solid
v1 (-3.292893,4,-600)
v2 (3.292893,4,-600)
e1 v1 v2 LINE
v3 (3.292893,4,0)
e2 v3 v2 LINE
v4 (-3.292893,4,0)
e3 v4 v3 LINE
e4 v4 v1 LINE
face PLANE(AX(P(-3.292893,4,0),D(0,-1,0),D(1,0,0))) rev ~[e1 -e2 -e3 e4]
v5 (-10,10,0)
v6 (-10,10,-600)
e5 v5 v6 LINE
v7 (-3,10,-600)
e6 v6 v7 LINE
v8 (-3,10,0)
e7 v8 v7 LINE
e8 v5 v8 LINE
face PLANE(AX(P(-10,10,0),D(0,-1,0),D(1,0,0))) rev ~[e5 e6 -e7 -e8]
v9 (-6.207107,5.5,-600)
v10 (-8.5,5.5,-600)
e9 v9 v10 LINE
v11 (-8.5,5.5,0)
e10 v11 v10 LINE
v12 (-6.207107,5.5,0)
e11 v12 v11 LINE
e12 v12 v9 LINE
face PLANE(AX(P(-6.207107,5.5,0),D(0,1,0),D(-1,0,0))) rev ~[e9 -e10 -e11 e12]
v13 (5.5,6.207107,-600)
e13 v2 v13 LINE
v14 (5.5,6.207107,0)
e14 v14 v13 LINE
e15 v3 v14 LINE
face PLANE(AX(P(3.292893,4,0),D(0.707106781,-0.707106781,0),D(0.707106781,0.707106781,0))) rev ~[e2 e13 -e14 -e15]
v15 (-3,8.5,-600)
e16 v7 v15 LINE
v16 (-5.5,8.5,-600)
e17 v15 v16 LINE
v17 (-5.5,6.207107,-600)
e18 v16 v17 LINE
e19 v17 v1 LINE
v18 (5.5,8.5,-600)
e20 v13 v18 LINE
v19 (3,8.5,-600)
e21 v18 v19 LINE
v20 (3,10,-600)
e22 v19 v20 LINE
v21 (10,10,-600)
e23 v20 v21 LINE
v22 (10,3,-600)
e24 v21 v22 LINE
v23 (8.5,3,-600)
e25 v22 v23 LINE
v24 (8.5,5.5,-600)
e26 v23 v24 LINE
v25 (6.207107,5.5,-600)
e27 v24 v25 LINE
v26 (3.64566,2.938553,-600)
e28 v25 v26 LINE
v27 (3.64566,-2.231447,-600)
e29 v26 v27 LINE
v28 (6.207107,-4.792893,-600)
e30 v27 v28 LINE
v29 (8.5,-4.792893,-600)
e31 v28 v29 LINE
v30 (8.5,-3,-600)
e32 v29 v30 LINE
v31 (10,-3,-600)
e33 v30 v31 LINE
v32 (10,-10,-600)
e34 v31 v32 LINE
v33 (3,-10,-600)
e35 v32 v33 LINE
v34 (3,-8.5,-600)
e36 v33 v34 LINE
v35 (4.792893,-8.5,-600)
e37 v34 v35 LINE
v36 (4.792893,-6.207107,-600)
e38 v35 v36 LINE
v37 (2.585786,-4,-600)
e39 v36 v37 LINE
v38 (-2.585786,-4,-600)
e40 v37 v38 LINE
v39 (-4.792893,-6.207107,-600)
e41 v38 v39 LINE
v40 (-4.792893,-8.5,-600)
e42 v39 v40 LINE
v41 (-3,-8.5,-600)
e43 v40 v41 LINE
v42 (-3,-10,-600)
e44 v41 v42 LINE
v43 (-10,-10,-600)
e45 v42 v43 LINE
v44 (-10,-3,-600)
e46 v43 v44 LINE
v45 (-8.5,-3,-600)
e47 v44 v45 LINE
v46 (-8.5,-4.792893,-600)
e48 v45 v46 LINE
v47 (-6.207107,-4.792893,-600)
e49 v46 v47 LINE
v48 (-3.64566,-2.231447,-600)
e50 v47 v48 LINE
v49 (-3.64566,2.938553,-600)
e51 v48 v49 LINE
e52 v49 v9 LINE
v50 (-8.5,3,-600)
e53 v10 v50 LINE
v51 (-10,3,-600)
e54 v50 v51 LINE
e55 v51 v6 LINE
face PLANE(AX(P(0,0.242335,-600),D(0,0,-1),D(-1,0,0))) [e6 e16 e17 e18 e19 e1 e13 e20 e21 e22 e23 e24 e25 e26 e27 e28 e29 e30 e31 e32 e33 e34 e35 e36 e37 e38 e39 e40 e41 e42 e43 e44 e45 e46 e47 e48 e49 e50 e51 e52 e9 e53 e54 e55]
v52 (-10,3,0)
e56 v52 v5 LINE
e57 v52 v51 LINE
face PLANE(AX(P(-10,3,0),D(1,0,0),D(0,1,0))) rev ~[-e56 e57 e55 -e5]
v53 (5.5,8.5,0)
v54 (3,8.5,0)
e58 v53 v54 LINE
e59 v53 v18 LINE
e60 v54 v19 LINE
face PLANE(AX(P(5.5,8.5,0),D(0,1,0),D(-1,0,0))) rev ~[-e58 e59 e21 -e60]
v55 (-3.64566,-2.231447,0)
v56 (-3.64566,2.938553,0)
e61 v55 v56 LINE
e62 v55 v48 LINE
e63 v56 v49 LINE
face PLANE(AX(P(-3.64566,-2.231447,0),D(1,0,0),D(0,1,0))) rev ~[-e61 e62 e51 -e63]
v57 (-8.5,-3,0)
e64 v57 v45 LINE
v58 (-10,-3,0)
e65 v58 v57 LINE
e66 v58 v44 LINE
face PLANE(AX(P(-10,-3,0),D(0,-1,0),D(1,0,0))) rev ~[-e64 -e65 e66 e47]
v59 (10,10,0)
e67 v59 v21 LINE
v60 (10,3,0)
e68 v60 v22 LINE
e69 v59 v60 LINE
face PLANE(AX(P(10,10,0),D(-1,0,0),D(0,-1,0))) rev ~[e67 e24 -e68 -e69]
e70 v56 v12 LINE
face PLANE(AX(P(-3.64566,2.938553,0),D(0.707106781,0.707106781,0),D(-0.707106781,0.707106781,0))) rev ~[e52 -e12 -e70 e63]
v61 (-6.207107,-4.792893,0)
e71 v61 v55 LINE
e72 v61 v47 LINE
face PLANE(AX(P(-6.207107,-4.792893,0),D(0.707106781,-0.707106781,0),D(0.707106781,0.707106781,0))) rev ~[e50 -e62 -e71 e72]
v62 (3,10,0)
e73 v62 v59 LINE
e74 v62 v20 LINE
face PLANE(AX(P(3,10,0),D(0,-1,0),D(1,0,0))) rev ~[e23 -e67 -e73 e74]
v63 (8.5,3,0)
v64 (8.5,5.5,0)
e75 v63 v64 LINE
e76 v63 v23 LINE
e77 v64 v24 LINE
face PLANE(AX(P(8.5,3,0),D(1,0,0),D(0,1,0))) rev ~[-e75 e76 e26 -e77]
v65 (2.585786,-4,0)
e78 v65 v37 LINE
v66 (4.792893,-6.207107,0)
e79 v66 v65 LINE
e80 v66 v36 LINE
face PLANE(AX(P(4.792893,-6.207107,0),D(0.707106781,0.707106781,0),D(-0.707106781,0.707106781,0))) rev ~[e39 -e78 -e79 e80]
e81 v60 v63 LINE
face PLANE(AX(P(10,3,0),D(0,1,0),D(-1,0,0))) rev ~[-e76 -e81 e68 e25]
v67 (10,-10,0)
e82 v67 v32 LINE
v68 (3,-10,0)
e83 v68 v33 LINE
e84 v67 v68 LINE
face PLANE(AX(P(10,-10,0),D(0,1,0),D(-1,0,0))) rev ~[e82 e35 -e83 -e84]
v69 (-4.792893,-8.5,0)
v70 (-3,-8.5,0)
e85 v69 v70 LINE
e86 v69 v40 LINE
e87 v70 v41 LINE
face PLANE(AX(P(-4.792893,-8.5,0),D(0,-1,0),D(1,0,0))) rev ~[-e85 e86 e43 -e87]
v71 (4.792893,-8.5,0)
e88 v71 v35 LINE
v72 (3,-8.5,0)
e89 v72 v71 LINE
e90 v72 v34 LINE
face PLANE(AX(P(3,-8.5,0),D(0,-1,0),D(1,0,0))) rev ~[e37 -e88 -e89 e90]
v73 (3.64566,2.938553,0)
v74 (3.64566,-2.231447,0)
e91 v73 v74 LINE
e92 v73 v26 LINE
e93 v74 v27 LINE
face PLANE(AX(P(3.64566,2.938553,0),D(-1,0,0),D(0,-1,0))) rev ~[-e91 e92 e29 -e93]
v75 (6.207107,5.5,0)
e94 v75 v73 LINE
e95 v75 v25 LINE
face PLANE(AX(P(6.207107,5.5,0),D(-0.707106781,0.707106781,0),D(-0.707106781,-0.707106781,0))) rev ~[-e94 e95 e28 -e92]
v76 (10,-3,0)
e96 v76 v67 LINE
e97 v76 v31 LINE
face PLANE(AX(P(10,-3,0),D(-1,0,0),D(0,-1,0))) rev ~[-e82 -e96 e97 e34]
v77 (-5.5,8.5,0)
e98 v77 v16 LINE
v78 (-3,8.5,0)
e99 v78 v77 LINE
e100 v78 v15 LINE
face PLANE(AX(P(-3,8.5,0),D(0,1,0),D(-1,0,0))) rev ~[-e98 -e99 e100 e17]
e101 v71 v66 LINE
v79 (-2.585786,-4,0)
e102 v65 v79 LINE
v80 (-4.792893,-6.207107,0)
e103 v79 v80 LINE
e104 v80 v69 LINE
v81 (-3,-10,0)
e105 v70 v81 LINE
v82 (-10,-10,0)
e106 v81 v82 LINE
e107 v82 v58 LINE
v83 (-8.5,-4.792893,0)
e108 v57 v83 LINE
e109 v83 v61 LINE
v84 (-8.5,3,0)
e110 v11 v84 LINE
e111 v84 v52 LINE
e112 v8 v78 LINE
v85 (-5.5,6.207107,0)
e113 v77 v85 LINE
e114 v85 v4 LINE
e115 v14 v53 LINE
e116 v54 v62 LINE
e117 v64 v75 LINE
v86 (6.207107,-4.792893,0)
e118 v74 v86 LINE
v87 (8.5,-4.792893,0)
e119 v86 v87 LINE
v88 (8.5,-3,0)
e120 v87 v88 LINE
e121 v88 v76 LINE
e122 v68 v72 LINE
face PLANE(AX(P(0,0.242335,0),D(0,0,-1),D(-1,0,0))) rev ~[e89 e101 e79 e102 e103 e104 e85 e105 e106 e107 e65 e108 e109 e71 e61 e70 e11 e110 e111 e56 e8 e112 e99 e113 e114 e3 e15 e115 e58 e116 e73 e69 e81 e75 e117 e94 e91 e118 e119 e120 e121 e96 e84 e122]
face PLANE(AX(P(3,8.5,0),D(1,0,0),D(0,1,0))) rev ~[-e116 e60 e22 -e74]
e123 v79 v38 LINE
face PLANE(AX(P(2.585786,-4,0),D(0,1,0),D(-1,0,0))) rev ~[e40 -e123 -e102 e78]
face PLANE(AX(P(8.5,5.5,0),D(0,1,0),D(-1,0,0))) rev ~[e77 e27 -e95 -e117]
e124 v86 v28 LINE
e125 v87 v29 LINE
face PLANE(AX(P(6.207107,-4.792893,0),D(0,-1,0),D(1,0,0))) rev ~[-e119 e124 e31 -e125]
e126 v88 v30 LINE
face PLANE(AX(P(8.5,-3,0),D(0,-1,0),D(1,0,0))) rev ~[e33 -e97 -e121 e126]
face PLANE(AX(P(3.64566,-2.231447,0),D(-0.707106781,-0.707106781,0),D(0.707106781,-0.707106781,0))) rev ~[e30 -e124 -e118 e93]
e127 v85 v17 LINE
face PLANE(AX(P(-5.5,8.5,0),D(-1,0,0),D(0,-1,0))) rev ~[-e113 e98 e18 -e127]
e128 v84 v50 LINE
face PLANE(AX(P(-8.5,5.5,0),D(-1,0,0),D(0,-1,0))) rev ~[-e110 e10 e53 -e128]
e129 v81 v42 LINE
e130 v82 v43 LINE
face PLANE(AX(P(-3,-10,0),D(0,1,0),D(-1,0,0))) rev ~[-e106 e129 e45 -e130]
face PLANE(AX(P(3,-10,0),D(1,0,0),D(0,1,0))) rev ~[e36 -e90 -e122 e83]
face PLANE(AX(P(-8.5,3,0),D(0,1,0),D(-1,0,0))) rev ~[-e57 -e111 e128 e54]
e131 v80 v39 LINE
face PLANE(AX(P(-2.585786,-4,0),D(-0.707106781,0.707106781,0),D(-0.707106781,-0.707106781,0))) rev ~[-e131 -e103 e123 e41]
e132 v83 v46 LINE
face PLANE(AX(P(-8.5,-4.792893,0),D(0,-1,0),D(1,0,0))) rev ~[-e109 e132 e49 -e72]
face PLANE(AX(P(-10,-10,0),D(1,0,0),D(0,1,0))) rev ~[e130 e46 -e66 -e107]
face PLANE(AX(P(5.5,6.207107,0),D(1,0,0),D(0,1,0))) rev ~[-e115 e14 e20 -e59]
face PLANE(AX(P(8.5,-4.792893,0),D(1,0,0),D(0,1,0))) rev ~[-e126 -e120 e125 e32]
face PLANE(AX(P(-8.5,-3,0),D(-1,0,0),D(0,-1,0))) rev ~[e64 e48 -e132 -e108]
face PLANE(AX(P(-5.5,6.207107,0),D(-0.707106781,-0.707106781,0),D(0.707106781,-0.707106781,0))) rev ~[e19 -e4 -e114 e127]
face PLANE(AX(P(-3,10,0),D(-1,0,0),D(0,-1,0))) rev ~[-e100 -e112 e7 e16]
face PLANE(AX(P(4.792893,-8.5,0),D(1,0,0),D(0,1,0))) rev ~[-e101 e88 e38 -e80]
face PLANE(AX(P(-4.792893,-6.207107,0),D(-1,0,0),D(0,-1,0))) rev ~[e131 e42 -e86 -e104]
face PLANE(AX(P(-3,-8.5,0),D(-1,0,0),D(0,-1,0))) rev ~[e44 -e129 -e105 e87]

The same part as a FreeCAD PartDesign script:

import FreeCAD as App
import Part
import Sketcher
Q = App.Units.Quantity

doc = App.newDocument("Part")
body = doc.addObject("PartDesign::Body", "Body")

sketch1 = body.newObject("Sketcher::SketchObject", "Sketch")
sketch1.AttachmentSupport = (doc.getObject("XY_Plane"), [""])
sketch1.MapMode = "FlatFace"
sketch1.addGeometry([
    Part.LineSegment(App.Vector(-10, 10, 0), App.Vector(-10, 3, 0)),
    Part.LineSegment(App.Vector(-10, 3, 0), App.Vector(-8.5, 3, 0)),
    Part.LineSegment(App.Vector(-8.5, 3, 0), App.Vector(-8.5, 5.5, 0)),
    Part.LineSegment(App.Vector(-8.5, 5.5, 0), App.Vector(-6.2, 5.5, 0)),
    Part.LineSegment(App.Vector(-6.2, 5.5, 0), App.Vector(-3.6, 2.9, 0)),
    Part.LineSegment(App.Vector(-3.6, 2.9, 0), App.Vector(-3.6, -2.2, 0)),
    Part.LineSegment(App.Vector(-3.6, -2.2, 0), App.Vector(-6.2, -4.8, 0)),
    Part.LineSegment(App.Vector(-6.2, -4.8, 0), App.Vector(-8.5, -4.8, 0)),
    Part.LineSegment(App.Vector(-8.5, -4.8, 0), App.Vector(-8.5, -3, 0)),
    Part.LineSegment(App.Vector(-8.5, -3, 0), App.Vector(-10, -3, 0)),
    Part.LineSegment(App.Vector(-10, -3, 0), App.Vector(-10, -10, 0)),
    Part.LineSegment(App.Vector(-10, -10, 0), App.Vector(-3, -10, 0)),
    Part.LineSegment(App.Vector(-3, -10, 0), App.Vector(-3, -8.5, 0)),
    Part.LineSegment(App.Vector(-3, -8.5, 0), App.Vector(-4.8, -8.5, 0)),
    Part.LineSegment(App.Vector(-4.8, -8.5, 0), App.Vector(-4.8, -6.2, 0)),
    Part.LineSegment(App.Vector(-4.8, -6.2, 0), App.Vector(-2.6, -4, 0)),
    Part.LineSegment(App.Vector(-2.6, -4, 0), App.Vector(2.6, -4, 0)),
    Part.LineSegment(App.Vector(2.6, -4, 0), App.Vector(4.8, -6.2, 0)),
    Part.LineSegment(App.Vector(4.8, -6.2, 0), App.Vector(4.8, -8.5, 0)),
    Part.LineSegment(App.Vector(4.8, -8.5, 0), App.Vector(3, -8.5, 0)),
    Part.LineSegment(App.Vector(3, -8.5, 0), App.Vector(3, -10, 0)),
    Part.LineSegment(App.Vector(3, -10, 0), App.Vector(10, -10, 0)),
    Part.LineSegment(App.Vector(10, -10, 0), App.Vector(10, -3, 0)),
    Part.LineSegment(App.Vector(10, -3, 0), App.Vector(8.5, -3, 0)),
    Part.LineSegment(App.Vector(8.5, -3, 0), App.Vector(8.5, -4.8, 0)),
    Part.LineSegment(App.Vector(8.5, -4.8, 0), App.Vector(6.2, -4.8, 0)),
    Part.LineSegment(App.Vector(6.2, -4.8, 0), App.Vector(3.6, -2.2, 0)),
    Part.LineSegment(App.Vector(3.6, -2.2, 0), App.Vector(3.6, 2.9, 0)),
    Part.LineSegment(App.Vector(3.6, 2.9, 0), App.Vector(6.2, 5.5, 0)),
    Part.LineSegment(App.Vector(6.2, 5.5, 0), App.Vector(8.5, 5.5, 0)),
    Part.LineSegment(App.Vector(8.5, 5.5, 0), App.Vector(8.5, 3, 0)),
    Part.LineSegment(App.Vector(8.5, 3, 0), App.Vector(10, 3, 0)),
    Part.LineSegment(App.Vector(10, 3, 0), App.Vector(10, 10, 0)),
    Part.LineSegment(App.Vector(10, 10, 0), App.Vector(3, 10, 0)),
    Part.LineSegment(App.Vector(3, 10, 0), App.Vector(3, 8.5, 0)),
    Part.LineSegment(App.Vector(3, 8.5, 0), App.Vector(5.5, 8.5, 0)),
    Part.LineSegment(App.Vector(5.5, 8.5, 0), App.Vector(5.5, 6.2, 0)),
    Part.LineSegment(App.Vector(5.5, 6.2, 0), App.Vector(3.3, 4, 0)),
    Part.LineSegment(App.Vector(3.3, 4, 0), App.Vector(-3.3, 4, 0)),
    Part.LineSegment(App.Vector(-3.3, 4, 0), App.Vector(-5.5, 6.2, 0)),
    Part.LineSegment(App.Vector(-5.5, 6.2, 0), App.Vector(-5.5, 8.5, 0)),
    Part.LineSegment(App.Vector(-5.5, 8.5, 0), App.Vector(-3, 8.5, 0)),
    Part.LineSegment(App.Vector(-3, 8.5, 0), App.Vector(-3, 10, 0)),
    Part.LineSegment(App.Vector(-3, 10, 0), App.Vector(-10, 10, 0)),
], False)
sketch1.addConstraint([
    Sketcher.Constraint("Coincident", 0, 2, 1, 1),
    Sketcher.Constraint("Coincident", 1, 2, 2, 1),
    Sketcher.Constraint("Coincident", 2, 2, 3, 1),
    Sketcher.Constraint("Coincident", 3, 2, 4, 1),
    Sketcher.Constraint("Coincident", 4, 2, 5, 1),
    Sketcher.Constraint("Coincident", 5, 2, 6, 1),
    Sketcher.Constraint("Coincident", 6, 2, 7, 1),
    Sketcher.Constraint("Coincident", 7, 2, 8, 1),
    Sketcher.Constraint("Coincident", 8, 2, 9, 1),
    Sketcher.Constraint("Coincident", 9, 2, 10, 1),
    Sketcher.Constraint("Coincident", 10, 2, 11, 1),
    Sketcher.Constraint("Coincident", 11, 2, 12, 1),
    Sketcher.Constraint("Coincident", 12, 2, 13, 1),
    Sketcher.Constraint("Coincident", 13, 2, 14, 1),
    Sketcher.Constraint("Coincident", 14, 2, 15, 1),
    Sketcher.Constraint("Coincident", 15, 2, 16, 1),
    Sketcher.Constraint("Coincident", 16, 2, 17, 1),
    Sketcher.Constraint("Coincident", 17, 2, 18, 1),
    Sketcher.Constraint("Coincident", 18, 2, 19, 1),
    Sketcher.Constraint("Coincident", 19, 2, 20, 1),
    Sketcher.Constraint("Coincident", 20, 2, 21, 1),
    Sketcher.Constraint("Coincident", 21, 2, 22, 1),
    Sketcher.Constraint("Coincident", 22, 2, 23, 1),
    Sketcher.Constraint("Coincident", 23, 2, 24, 1),
    Sketcher.Constraint("Coincident", 24, 2, 25, 1),
    Sketcher.Constraint("Coincident", 25, 2, 26, 1),
    Sketcher.Constraint("Coincident", 26, 2, 27, 1),
    Sketcher.Constraint("Coincident", 27, 2, 28, 1),
    Sketcher.Constraint("Coincident", 28, 2, 29, 1),
    Sketcher.Constraint("Coincident", 29, 2, 30, 1),
    Sketcher.Constraint("Coincident", 30, 2, 31, 1),
    Sketcher.Constraint("Coincident", 31, 2, 32, 1),
    Sketcher.Constraint("Coincident", 32, 2, 33, 1),
    Sketcher.Constraint("Coincident", 33, 2, 34, 1),
    Sketcher.Constraint("Coincident", 34, 2, 35, 1),
    Sketcher.Constraint("Coincident", 35, 2, 36, 1),
    Sketcher.Constraint("Coincident", 36, 2, 37, 1),
    Sketcher.Constraint("Coincident", 37, 2, 38, 1),
    Sketcher.Constraint("Coincident", 38, 2, 39, 1),
    Sketcher.Constraint("Coincident", 39, 2, 40, 1),
    Sketcher.Constraint("Coincident", 40, 2, 41, 1),
    Sketcher.Constraint("Coincident", 41, 2, 42, 1),
    Sketcher.Constraint("Coincident", 42, 2, 43, 1),
    Sketcher.Constraint("Coincident", 43, 2, 0, 1),
    Sketcher.Constraint("Vertical", 0),
    Sketcher.Constraint("Horizontal", 1),
    Sketcher.Constraint("Vertical", 2),
    Sketcher.Constraint("Horizontal", 3),
    Sketcher.Constraint("Vertical", 5),
    Sketcher.Constraint("Horizontal", 7),
    Sketcher.Constraint("Vertical", 8),
    Sketcher.Constraint("Horizontal", 9),
    Sketcher.Constraint("Vertical", 10),
    Sketcher.Constraint("Horizontal", 11),
    Sketcher.Constraint("Vertical", 12),
    Sketcher.Constraint("Horizontal", 13),
    Sketcher.Constraint("Vertical", 14),
    Sketcher.Constraint("Horizontal", 16),
    Sketcher.Constraint("Vertical", 18),
    Sketcher.Constraint("Horizontal", 19),
    Sketcher.Constraint("Vertical", 20),
    Sketcher.Constraint("Horizontal", 21),
    Sketcher.Constraint("Vertical", 22),
    Sketcher.Constraint("Horizontal", 23),
    Sketcher.Constraint("Vertical", 24),
    Sketcher.Constraint("Horizontal", 25),
    Sketcher.Constraint("Vertical", 27),
    Sketcher.Constraint("Horizontal", 29),
    Sketcher.Constraint("Vertical", 30),
    Sketcher.Constraint("Horizontal", 31),
    Sketcher.Constraint("Vertical", 32),
    Sketcher.Constraint("Horizontal", 33),
    Sketcher.Constraint("Vertical", 34),
    Sketcher.Constraint("Horizontal", 35),
    Sketcher.Constraint("Vertical", 36),
    Sketcher.Constraint("Horizontal", 38),
    Sketcher.Constraint("Vertical", 40),
    Sketcher.Constraint("Horizontal", 41),
    Sketcher.Constraint("Vertical", 42),
    Sketcher.Constraint("Horizontal", 43),
    Sketcher.Constraint("Symmetric", 0, 2, 22, 2, -1, 1),
    Sketcher.Constraint("Symmetric", 8, 2, 30, 2, -1, 1),
    Sketcher.Constraint("Symmetric", 10, 2, 32, 2, -1, 1),
    Sketcher.Constraint("Symmetric", 12, 2, 34, 2, -1, 1),
    Sketcher.Constraint("Symmetric", 19, 2, 41, 2, -1, 1),
    Sketcher.Constraint("Symmetric", 14, 2, 17, 2, -2),
    Sketcher.Constraint("Symmetric", 12, 2, 19, 2, -2),
    Sketcher.Constraint("Symmetric", 10, 2, 21, 2, -2),
    Sketcher.Constraint("Symmetric", 8, 2, 23, 2, -2),
    Sketcher.Constraint("Symmetric", 6, 2, 25, 2, -2),
    Sketcher.Constraint("Symmetric", 5, 2, 26, 2, -2),
    Sketcher.Constraint("Symmetric", 3, 2, 28, 2, -2),
    Sketcher.Constraint("Symmetric", 36, 2, 39, 2, -2),
    Sketcher.Constraint("Perpendicular", 4, 6),
    Sketcher.Constraint("Parallel", 6, 15),
    Sketcher.Constraint("Perpendicular", 15, 17),
    Sketcher.Constraint("Parallel", 17, 26),
    Sketcher.Constraint("Perpendicular", 26, 28),
    Sketcher.Constraint("Parallel", 28, 37),
    Sketcher.Constraint("Perpendicular", 37, 39),
    Sketcher.Constraint("Horizontal", 33, 2, 42, 2),
    Sketcher.Constraint("Vertical", 3, 2, 6, 2),
    Sketcher.Constraint("Vertical", 2, 2, 7, 2),
    Sketcher.Constraint("Equal", 43, 0),
    Sketcher.Constraint("Equal", 41, 2),
    Sketcher.Constraint("Equal", 19, 8),
    Sketcher.Constraint("Equal", 31, 12),
    Sketcher.Constraint("Equal", 29, 14),
    Sketcher.Constraint("Equal", 18, 36),
    Sketcher.Constraint("Equal", 17, 37),
    Sketcher.Constraint("DistanceX", 11, 1, 11, 2, Q("7 mm")),
    Sketcher.Constraint("DistanceX", 1, 1, 1, 2, Q("1.5 mm")),
    Sketcher.Constraint("DistanceX", 35, 1, 35, 2, Q("2.5 mm")),
    Sketcher.Constraint("DistanceX", 0, 2, -1, 1, Q("10 mm")),
    Sketcher.Constraint("DistanceY", -1, 1, 0, 2, Q("3 mm")),
    Sketcher.Constraint("DistanceY", 15, 2, -1, 1, Q("4 mm")),
    Sketcher.Constraint("DistanceY", 5, 2, 5, 1, Q("5.17 mm")),
    Sketcher.Constraint("Distance", 15, Q("3.12132 mm")),
    Sketcher.Constraint("DistanceX", 13, 2, 13, 1, Q("1.792893 mm")),
])
pad1 = body.newObject("PartDesign::Pad", "Pad")
pad1.Profile = sketch1
pad1.Length = 600
pad1.Reversed = True

doc.recompute()
